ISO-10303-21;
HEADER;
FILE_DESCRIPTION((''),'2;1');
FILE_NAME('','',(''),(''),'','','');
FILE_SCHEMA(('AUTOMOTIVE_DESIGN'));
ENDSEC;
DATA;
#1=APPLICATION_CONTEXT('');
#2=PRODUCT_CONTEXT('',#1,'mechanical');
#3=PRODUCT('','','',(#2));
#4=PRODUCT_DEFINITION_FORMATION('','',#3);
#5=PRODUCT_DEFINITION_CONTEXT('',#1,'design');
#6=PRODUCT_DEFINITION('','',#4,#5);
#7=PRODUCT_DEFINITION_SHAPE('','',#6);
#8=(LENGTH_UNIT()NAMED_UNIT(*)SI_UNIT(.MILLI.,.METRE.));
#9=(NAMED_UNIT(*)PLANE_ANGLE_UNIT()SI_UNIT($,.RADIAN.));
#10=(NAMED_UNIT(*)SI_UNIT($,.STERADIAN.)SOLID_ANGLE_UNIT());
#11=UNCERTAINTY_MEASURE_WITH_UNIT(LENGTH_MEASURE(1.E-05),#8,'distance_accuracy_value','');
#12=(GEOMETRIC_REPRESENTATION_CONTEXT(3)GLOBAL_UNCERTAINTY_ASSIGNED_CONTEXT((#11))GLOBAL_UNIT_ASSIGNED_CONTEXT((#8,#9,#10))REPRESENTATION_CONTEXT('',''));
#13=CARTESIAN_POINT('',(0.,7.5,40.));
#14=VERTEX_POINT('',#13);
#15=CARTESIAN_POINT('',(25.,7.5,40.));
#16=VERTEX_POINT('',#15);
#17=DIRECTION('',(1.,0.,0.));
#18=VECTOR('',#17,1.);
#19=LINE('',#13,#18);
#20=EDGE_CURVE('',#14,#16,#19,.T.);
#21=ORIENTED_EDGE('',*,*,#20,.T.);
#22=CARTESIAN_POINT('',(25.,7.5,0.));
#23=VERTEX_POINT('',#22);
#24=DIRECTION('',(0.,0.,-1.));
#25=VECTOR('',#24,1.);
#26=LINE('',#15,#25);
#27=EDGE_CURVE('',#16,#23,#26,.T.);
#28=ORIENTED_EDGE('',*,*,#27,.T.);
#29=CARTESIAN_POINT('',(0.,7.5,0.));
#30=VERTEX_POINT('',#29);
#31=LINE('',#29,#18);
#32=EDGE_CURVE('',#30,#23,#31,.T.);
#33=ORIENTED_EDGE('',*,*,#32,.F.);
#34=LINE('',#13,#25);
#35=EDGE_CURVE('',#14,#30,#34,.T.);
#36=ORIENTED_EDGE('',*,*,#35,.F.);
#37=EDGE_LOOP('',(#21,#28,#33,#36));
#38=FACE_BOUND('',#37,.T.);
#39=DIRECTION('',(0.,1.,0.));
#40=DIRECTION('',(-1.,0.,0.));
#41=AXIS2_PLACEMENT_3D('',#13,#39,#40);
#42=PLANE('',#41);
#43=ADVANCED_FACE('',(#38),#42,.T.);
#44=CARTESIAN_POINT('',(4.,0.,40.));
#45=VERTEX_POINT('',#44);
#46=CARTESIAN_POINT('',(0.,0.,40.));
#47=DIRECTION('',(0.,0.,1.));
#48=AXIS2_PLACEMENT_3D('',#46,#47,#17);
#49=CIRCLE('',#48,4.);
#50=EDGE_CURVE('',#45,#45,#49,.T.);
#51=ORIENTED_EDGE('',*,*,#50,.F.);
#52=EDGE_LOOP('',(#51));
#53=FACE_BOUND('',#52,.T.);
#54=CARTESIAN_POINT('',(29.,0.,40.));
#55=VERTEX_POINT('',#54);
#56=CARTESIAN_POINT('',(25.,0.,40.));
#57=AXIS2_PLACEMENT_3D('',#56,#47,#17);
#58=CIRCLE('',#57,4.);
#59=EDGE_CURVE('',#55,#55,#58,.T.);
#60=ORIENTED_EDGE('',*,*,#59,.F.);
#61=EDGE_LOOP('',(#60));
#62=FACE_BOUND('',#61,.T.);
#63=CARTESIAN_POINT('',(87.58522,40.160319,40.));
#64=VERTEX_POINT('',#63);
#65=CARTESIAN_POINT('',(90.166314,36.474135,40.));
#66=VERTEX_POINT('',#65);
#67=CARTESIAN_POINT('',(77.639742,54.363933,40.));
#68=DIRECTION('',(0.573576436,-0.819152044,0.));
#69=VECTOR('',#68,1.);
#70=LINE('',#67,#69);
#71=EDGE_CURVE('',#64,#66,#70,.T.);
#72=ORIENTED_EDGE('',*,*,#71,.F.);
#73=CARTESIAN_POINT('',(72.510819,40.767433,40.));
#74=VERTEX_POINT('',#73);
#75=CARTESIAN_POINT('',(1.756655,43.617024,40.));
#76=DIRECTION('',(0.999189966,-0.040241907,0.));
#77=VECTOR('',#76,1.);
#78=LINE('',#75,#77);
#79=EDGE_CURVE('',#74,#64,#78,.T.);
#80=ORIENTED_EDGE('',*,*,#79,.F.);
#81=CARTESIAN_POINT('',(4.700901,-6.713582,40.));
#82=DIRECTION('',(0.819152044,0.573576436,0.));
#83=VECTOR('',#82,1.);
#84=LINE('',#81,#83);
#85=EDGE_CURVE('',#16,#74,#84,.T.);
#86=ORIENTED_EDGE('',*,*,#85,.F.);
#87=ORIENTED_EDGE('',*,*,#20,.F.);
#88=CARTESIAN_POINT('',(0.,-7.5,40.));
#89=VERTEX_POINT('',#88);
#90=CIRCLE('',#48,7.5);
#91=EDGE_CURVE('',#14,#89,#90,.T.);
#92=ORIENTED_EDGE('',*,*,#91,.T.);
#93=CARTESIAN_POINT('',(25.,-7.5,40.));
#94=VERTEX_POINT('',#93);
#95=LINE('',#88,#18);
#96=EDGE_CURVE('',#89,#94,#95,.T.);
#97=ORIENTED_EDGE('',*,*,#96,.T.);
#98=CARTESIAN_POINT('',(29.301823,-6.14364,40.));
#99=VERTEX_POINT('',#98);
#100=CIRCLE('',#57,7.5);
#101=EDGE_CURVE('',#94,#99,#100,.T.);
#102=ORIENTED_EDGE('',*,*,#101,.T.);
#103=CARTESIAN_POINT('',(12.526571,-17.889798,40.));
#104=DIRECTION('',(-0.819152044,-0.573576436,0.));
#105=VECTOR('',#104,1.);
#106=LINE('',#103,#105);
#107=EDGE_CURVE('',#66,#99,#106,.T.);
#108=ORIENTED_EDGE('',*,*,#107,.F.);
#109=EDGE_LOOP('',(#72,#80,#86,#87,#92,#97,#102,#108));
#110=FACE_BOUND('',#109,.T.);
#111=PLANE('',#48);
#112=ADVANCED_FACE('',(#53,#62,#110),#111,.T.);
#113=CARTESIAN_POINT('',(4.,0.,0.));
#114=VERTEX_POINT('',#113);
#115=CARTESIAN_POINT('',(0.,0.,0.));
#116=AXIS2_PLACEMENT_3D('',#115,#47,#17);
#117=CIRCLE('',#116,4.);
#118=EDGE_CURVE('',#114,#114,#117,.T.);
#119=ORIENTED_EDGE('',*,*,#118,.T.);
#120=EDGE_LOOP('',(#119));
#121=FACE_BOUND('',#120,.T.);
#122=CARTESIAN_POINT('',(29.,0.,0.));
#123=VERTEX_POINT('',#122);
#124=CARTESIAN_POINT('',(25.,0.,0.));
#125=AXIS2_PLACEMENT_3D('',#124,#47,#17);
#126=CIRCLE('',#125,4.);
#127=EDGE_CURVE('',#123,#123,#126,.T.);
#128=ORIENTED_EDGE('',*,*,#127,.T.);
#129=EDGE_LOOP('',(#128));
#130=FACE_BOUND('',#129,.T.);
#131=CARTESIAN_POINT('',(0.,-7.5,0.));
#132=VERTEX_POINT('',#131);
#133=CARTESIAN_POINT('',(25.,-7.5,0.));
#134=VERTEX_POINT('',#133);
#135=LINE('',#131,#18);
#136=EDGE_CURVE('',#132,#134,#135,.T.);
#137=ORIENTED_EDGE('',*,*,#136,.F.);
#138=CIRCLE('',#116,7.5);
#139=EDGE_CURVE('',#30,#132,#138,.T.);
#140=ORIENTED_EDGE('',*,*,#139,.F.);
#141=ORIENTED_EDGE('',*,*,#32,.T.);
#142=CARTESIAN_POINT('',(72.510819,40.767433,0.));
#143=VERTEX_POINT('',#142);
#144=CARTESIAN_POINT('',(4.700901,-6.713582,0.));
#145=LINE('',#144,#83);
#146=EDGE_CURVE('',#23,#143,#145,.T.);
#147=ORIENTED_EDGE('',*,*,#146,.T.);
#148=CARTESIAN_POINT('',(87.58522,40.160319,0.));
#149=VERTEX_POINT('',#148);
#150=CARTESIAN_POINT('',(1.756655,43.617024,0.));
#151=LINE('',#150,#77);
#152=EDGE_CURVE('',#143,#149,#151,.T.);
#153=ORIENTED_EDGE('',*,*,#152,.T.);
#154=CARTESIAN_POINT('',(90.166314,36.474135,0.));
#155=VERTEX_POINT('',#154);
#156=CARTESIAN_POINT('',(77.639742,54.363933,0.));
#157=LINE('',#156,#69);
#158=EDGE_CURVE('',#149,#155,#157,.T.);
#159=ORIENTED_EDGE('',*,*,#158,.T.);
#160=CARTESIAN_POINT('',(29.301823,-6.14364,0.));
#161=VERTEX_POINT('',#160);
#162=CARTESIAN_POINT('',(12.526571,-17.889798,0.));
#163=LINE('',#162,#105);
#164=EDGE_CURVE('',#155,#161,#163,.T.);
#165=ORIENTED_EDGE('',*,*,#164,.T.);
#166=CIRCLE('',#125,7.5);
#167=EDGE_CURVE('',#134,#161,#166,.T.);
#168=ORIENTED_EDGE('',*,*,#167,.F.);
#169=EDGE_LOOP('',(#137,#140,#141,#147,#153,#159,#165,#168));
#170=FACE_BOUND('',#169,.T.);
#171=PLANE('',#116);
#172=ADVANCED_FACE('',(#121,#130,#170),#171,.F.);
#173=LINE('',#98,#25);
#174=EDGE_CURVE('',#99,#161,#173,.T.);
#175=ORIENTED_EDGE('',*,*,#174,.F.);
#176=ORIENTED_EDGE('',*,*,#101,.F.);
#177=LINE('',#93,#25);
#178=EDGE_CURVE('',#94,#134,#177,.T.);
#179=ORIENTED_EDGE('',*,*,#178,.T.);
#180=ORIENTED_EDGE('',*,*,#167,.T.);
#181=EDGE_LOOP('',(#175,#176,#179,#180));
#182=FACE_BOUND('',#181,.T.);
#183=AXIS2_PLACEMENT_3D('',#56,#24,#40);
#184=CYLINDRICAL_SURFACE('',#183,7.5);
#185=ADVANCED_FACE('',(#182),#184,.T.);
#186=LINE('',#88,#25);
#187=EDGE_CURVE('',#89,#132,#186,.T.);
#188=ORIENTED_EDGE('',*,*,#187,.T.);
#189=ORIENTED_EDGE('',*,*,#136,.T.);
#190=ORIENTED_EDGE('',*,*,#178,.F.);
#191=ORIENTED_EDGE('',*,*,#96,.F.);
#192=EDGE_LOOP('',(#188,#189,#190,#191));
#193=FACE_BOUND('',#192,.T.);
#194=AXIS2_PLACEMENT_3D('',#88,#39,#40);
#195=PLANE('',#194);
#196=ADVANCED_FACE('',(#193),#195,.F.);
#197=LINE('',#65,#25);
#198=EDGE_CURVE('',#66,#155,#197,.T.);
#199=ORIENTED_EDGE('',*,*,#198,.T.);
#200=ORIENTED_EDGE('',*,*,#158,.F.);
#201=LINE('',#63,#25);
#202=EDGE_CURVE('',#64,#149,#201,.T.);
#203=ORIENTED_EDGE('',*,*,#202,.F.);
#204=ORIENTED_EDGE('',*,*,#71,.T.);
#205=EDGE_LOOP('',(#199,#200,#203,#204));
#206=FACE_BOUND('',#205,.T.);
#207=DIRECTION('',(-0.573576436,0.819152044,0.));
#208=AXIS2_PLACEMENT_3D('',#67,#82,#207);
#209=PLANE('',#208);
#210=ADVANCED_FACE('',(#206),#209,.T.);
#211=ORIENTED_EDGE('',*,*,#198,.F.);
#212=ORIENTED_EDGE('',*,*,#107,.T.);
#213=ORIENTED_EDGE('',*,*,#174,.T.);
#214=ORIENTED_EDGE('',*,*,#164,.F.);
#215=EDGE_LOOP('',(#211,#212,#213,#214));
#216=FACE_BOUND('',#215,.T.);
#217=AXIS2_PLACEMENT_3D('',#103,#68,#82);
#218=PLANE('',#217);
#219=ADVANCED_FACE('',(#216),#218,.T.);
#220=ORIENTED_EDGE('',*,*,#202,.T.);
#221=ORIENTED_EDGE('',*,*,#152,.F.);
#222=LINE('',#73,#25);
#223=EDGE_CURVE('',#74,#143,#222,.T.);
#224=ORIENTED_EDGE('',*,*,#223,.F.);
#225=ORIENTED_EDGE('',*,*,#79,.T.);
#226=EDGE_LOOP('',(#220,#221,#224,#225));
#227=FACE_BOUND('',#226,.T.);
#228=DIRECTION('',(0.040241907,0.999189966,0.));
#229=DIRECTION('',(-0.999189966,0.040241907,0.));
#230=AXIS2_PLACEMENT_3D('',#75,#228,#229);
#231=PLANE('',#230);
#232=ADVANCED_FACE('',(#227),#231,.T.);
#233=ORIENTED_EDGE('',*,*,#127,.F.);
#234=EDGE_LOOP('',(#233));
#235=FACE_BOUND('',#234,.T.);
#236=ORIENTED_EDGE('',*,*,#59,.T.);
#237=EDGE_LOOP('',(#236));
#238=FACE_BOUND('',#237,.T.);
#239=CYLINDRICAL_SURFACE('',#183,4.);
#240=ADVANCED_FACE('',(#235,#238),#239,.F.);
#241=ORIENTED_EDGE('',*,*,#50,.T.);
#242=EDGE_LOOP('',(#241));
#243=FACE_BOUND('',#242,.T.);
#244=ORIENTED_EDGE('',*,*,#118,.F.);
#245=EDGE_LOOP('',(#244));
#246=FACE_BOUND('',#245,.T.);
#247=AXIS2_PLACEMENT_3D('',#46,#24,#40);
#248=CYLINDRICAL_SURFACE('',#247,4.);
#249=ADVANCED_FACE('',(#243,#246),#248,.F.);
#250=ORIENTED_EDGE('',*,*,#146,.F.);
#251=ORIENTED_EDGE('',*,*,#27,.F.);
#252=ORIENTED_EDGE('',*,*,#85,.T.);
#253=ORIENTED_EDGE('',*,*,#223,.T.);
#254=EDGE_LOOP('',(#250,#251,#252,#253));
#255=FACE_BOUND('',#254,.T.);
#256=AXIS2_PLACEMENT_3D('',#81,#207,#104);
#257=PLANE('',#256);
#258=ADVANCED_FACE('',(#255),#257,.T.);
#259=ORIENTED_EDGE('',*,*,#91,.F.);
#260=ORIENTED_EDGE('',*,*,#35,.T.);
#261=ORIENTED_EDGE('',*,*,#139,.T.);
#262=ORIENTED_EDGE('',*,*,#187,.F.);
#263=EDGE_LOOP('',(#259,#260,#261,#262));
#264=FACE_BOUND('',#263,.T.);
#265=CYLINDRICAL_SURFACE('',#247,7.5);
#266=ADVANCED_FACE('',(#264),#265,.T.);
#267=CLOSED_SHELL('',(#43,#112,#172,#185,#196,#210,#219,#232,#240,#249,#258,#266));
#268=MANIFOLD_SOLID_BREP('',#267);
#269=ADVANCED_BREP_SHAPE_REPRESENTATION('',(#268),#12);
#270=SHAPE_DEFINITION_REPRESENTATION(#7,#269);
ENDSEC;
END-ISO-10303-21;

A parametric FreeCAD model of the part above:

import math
import FreeCAD as App
import Part
import Sketcher

V = App.Vector
Q = App.Units.Quantity

doc = App.newDocument("Part")
params = doc.addObject("Spreadsheet::Sheet", "Params")
for row, (alias, value) in enumerate([
    ("sketch1_diameter", "8 mm"),
    ("sketch1_radius", "7.5 mm"),
    ("sketch1_width", "25 mm"),
    ("sketch1_length", "58 mm"),
    ("sketch1_length2", "4.5 mm"),
    ("pad1_length", "40 mm"),
], start=1):
    params.set(f"A{row}", alias)
    params.set(f"B{row}", "=" + value)
    params.setAlias(f"B{row}", alias)

body = doc.addObject("PartDesign::Body", "Body")

# Sketch on XY plane
sketch1 = body.newObject("Sketcher::SketchObject", "Sketch")
sketch1.AttachmentSupport = (doc.getObject("XY_Plane"), [""])
sketch1.MapMode = "FlatFace"
sketch1.addGeometry(Part.LineSegment(V(25, 7.5, 0), V(0, 7.5, 0)), False)
sketch1.addGeometry(Part.ArcOfCircle(Part.Circle(V(0, 0, 0), V(0, 0, 1), 7.5), math.radians(90), math.radians(270)), False)
sketch1.addGeometry(Part.LineSegment(V(0, -7.5, 0), V(25, -7.5, 0)), False)
sketch1.addGeometry(Part.ArcOfCircle(Part.Circle(V(25, 0, 0), V(0, 0, 1), 7.5), math.radians(-90), math.radians(-55)), False)
sketch1.addGeometry(Part.LineSegment(V(29.3, -6.1, 0), V(90.2, 36.5, 0)), False)
sketch1.addGeometry(Part.LineSegment(V(90.2, 36.5, 0), V(87.6, 40.2, 0)), False)
sketch1.addGeometry(Part.LineSegment(V(87.6, 40.2, 0), V(72.5, 40.8, 0)), False)
sketch1.addGeometry(Part.LineSegment(V(72.5, 40.8, 0), V(25, 7.5, 0)), False)
sketch1.addGeometry(Part.Circle(V(0, 0, 0), V(0, 0, 1), 4), False)
sketch1.addGeometry(Part.Circle(V(25, 0, 0), V(0, 0, 1), 4), False)
sketch1.addConstraint(Sketcher.Constraint("Tangent", 0, 2, 1, 1))
sketch1.addConstraint(Sketcher.Constraint("Tangent", 1, 2, 2, 1))
sketch1.addConstraint(Sketcher.Constraint("Tangent", 2, 2, 3, 1))
sketch1.addConstraint(Sketcher.Constraint("Tangent", 3, 2, 4, 1))
sketch1.addConstraint(Sketcher.Constraint("Coincident", 4, 2, 5, 1))
sketch1.addConstraint(Sketcher.Constraint("Coincident", 5, 2, 6, 1))
sketch1.addConstraint(Sketcher.Constraint("Coincident", 6, 2, 7, 1))
sketch1.addConstraint(Sketcher.Constraint("Coincident", 7, 2, 0, 1))
sketch1.addConstraint(Sketcher.Constraint("Horizontal", 0))
sketch1.addConstraint(Sketcher.Constraint("Horizontal", 2))
sketch1.addConstraint(Sketcher.Constraint("Coincident", 1, 3, -1, 1))
sketch1.addConstraint(Sketcher.Constraint("Coincident", 8, 3, -1, 1))
sketch1.addConstraint(Sketcher.Constraint("Coincident", 9, 3, 3, 3))
sketch1.addConstraint(Sketcher.Constraint("Equal", 1, 3))
sketch1.addConstraint(Sketcher.Constraint("Equal", 8, 9))
sketch1.addConstraint(Sketcher.Constraint("Perpendicular", 4, 5))
sketch1.addConstraint(Sketcher.Constraint("Perpendicular", 5, 7))
sketch1.addConstraint(Sketcher.Constraint("Vertical", 2, 2, 7, 2))
sketch1.addConstraint(Sketcher.Constraint("Diameter", 8, Q("8 mm")))
sketch1.addConstraint(Sketcher.Constraint("Radius", 1, Q("7.5 mm")))
sketch1.addConstraint(Sketcher.Constraint("DistanceX", 0, 2, 0, 1, Q("25 mm")))
sketch1.addConstraint(Sketcher.Constraint("Angle", 4, Q("35 deg")))
sketch1.addConstraint(Sketcher.Constraint("Distance", 7, Q("58 mm")))
sketch1.addConstraint(Sketcher.Constraint("Distance", 5, Q("4.5 mm")))
sketch1.addConstraint(Sketcher.Constraint("DistanceX", 6, 2, 5, 2, Q("15.074401 mm")))
sketch1.setExpression("Constraints[18]", "Params.sketch1_diameter")
sketch1.setExpression("Constraints[19]", "Params.sketch1_radius")
sketch1.setExpression("Constraints[20]", "Params.sketch1_width")
sketch1.setExpression("Constraints[22]", "Params.sketch1_length")
sketch1.setExpression("Constraints[23]", "Params.sketch1_length2")
pad1 = body.newObject("PartDesign::Pad", "Pad")
pad1.Profile = sketch1
pad1.setExpression("Length", "Params.pad1_length")

doc.recompute()
